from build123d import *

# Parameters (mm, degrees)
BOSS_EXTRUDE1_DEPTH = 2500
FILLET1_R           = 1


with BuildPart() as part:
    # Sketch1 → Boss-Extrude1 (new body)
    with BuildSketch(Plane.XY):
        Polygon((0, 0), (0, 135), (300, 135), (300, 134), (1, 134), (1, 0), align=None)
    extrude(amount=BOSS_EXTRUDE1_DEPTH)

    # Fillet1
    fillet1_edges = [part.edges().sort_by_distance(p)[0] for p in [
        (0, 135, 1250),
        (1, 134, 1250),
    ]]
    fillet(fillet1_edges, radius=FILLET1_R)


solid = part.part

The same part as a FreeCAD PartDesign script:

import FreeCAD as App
import Part
import Sketcher


def edges_at(feature, points):
    """Names of the edges that pass closest to the given points."""
    edges = feature.Shape.Edges
    near = lambda p: min(range(len(edges)), key=lambda i: edges[i].distToShape(Part.Vertex(*p))[0])
    return sorted({f"Edge{near(p) + 1}" for p in points})

doc = App.newDocument("Part")
params = doc.addObject("Spreadsheet::Sheet", "Params")
for row, (alias, value) in enumerate([
    ("sketch1_width", "1 mm"),
    ("sketch1_width2", "299 mm"),
    ("sketch1_height", "135 mm"),
    ("pad1_length", "2500 mm"),
    ("fillet_radius", "1 mm"),
], start=1):
    params.set(f"A{row}", alias)
    params.set(f"B{row}", "=" + value)
    params.setAlias(f"B{row}", alias)

body = doc.addObject("PartDesign::Body", "Body")

# Sketch on XY plane
sketch1 = body.newObject("Sketcher::SketchObject", "Sketch")
sketch1.AttachmentSupport = (doc.getObject("XY_Plane"), [""])
sketch1.MapMode = "FlatFace"
sketch1.addGeometry([
    Part.LineSegment(App.Vector(0, 135, 0), App.Vector(0, 0, 0)),  # 0
    Part.LineSegment(App.Vector(0, 0, 0), App.Vector(1, 0, 0)),  # 1
    Part.LineSegment(App.Vector(1, 0, 0), App.Vector(1, 134, 0)),  # 2
    Part.LineSegment(App.Vector(1, 134, 0), App.Vector(300, 134, 0)),  # 3
    Part.LineSegment(App.Vector(300, 134, 0), App.Vector(300, 135, 0)),  # 4
    Part.LineSegment(App.Vector(300, 135, 0), App.Vector(0, 135, 0)),  # 5
], False)
sketch1.addConstraint([
    Sketcher.Constraint("Coincident", 0, 2, 1, 1),
    Sketcher.Constraint("Coincident", 1, 2, 2, 1),
    Sketcher.Constraint("Coincident", 2, 2, 3, 1),
    Sketcher.Constraint("Coincident", 3, 2, 4, 1),
    Sketcher.Constraint("Coincident", 4, 2, 5, 1),
    Sketcher.Constraint("Coincident", 5, 2, 0, 1),
    Sketcher.Constraint("Vertical", 0),
    Sketcher.Constraint("Horizontal", 1),
    Sketcher.Constraint("Vertical", 2),
    Sketcher.Constraint("Horizontal", 3),
    Sketcher.Constraint("Vertical", 4),
    Sketcher.Constraint("Horizontal", 5),
    Sketcher.Constraint("Coincident", 0, 2, -1, 1),
    Sketcher.Constraint("Equal", 1, 4),
    Sketcher.Constraint("DistanceX", 1, 1, 1, 2, 1.0),
    Sketcher.Constraint("DistanceX", 3, 1, 3, 2, 299.0),
    Sketcher.Constraint("DistanceY", 0, 2, 0, 1, 135.0),
])
sketch1.setExpression("Constraints[14]", "Params.sketch1_width")
sketch1.setExpression("Constraints[15]", "Params.sketch1_width2")
sketch1.setExpression("Constraints[16]", "Params.sketch1_height")
pad1 = body.newObject("PartDesign::Pad", "Pad")
pad1.Profile = sketch1
pad1.setExpression("Length", "Params.pad1_length")
doc.recompute()

fillet = body.newObject("PartDesign::Fillet", "Fillet")
fillet.Base = (pad1, edges_at(pad1, [(0, 135, 1250), (1, 134, 1250)]))
fillet.setExpression("Radius", "Params.fillet_radius")

doc.recompute()
